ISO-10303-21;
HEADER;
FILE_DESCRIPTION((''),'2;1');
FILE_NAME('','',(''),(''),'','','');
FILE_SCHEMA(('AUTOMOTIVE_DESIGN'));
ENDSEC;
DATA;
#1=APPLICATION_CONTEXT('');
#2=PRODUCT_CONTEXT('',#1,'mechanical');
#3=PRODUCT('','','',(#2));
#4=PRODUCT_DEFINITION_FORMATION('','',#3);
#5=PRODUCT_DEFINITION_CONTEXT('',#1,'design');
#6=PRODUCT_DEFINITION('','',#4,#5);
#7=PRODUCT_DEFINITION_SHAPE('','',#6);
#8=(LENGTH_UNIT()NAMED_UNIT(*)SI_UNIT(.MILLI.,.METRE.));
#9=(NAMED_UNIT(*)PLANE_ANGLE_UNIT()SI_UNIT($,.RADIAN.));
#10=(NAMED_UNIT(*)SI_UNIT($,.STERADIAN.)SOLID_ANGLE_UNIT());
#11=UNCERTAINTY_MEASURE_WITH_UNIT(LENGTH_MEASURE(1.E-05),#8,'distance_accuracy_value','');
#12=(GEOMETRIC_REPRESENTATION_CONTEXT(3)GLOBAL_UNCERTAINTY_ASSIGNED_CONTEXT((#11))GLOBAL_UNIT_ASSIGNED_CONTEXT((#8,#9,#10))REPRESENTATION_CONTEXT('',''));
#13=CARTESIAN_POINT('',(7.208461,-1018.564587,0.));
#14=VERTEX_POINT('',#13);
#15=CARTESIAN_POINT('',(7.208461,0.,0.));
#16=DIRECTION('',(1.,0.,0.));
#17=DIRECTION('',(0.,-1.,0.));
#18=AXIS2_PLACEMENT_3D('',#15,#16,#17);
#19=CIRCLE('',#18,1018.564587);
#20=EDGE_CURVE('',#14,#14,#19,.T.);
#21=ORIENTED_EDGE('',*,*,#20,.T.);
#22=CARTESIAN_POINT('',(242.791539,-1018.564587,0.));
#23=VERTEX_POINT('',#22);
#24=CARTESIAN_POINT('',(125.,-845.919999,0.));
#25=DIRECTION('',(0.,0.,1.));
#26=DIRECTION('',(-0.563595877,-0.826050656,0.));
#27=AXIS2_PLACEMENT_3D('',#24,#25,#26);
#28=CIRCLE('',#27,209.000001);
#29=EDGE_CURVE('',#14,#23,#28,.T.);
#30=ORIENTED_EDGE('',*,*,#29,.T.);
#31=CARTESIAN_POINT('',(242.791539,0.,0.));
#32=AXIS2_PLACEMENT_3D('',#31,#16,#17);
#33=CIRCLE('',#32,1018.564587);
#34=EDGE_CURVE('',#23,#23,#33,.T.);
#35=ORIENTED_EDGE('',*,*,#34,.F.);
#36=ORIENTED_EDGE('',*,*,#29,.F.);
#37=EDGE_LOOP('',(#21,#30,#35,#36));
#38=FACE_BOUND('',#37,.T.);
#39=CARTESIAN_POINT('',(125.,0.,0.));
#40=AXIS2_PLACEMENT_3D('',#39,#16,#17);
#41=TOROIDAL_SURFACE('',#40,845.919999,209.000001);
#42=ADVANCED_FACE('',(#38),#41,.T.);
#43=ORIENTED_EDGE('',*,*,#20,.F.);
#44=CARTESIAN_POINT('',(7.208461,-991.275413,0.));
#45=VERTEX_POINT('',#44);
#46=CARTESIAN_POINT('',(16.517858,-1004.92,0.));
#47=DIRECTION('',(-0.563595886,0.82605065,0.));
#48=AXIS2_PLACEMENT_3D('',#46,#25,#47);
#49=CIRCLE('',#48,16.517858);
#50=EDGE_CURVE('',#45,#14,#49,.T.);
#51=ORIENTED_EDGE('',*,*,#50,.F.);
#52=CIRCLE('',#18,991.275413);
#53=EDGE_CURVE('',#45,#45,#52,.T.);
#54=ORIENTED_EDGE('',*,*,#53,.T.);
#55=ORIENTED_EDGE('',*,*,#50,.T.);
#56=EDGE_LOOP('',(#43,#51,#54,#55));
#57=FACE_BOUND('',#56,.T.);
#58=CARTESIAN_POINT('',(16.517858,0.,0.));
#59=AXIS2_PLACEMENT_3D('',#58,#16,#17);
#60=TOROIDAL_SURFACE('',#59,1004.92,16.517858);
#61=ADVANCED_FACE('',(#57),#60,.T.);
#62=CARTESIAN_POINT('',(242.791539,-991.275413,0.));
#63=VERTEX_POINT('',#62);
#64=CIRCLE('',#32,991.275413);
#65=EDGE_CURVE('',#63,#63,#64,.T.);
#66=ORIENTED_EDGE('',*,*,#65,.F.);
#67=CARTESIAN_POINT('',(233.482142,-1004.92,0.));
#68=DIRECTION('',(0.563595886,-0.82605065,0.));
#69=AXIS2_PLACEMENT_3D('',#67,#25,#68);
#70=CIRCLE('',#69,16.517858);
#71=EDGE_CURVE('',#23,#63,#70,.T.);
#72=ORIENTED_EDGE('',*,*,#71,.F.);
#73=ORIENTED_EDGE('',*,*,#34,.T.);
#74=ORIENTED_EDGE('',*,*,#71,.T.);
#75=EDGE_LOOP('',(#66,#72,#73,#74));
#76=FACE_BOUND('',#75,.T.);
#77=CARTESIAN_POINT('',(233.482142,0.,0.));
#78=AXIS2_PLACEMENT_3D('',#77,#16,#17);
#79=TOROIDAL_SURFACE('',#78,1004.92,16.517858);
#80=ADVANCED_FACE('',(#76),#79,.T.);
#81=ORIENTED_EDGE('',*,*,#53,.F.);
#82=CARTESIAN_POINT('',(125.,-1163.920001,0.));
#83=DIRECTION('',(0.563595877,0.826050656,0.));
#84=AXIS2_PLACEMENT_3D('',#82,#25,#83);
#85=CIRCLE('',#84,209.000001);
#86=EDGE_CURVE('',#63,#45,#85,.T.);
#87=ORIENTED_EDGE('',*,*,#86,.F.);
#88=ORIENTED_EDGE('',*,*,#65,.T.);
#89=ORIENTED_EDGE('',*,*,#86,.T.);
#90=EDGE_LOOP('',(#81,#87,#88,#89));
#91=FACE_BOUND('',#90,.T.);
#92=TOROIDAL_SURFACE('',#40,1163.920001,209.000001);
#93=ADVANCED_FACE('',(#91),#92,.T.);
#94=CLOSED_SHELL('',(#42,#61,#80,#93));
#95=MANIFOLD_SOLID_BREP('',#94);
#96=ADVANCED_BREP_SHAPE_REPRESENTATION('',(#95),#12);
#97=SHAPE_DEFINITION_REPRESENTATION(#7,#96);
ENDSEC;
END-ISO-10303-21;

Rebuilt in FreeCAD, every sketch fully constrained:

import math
import FreeCAD as App
import Part
import Sketcher
Q = App.Units.Quantity

doc = App.newDocument("Part")
body = doc.addObject("PartDesign::Body", "Body")

sketch1 = body.newObject("Sketcher::SketchObject", "Sketch")
sketch1.AttachmentSupport = (doc.getObject("XY_Plane"), [""])
sketch1.MapMode = "FlatFace"
sketch1.addGeometry([
    Part.ArcOfCircle(Part.Circle(App.Vector(16.517858, -1004.92, 0), App.Vector(0, 0, 1), 16.517858), math.radians(124.304844), math.radians(235.695156)),
    Part.ArcOfCircle(Part.Circle(App.Vector(125, -845.919999, 0), App.Vector(0, 0, 1), 209.000001), math.radians(-124.304843), math.radians(-55.695157)),
    Part.ArcOfCircle(Part.Circle(App.Vector(233.482142, -1004.92, 0), App.Vector(0, 0, 1), 16.517858), math.radians(-55.695156), math.radians(55.695156)),
    Part.ArcOfCircle(Part.Circle(App.Vector(125, -1163.920001, 0), App.Vector(0, 0, 1), 209.000001), math.radians(55.695157), math.radians(124.304843)),
], False)
sketch1.addConstraint([
    Sketcher.Constraint("Tangent", 0, 2, 1, 1),
    Sketcher.Constraint("Tangent", 1, 2, 2, 1),
    Sketcher.Constraint("Tangent", 2, 2, 3, 1),
    Sketcher.Constraint("Tangent", 3, 2, 0, 1),
    Sketcher.Constraint("Equal", 0, 2),
    Sketcher.Constraint("Equal", 1, 3),
    Sketcher.Constraint("Horizontal", 0, 3, 2, 3),
    Sketcher.Constraint("Radius", 1, Q("209.000001 mm")),
    Sketcher.Constraint("DistanceX", -1, 1, 1, 3, Q("125 mm")),
    Sketcher.Constraint("DistanceY", 0, 3, 1, 3, Q("159.000001 mm")),
    Sketcher.Constraint("DistanceY", 0, 3, -1, 1, Q("1004.92 mm")),
    Sketcher.Constraint("Radius", 0, Q("16.517858 mm")),
])
revolution = body.newObject("PartDesign::Revolution", "Revolution")
revolution.Profile = sketch1
revolution.ReferenceAxis = (sketch1, ["H_Axis"])
revolution.Angle = 360

doc.recompute()
